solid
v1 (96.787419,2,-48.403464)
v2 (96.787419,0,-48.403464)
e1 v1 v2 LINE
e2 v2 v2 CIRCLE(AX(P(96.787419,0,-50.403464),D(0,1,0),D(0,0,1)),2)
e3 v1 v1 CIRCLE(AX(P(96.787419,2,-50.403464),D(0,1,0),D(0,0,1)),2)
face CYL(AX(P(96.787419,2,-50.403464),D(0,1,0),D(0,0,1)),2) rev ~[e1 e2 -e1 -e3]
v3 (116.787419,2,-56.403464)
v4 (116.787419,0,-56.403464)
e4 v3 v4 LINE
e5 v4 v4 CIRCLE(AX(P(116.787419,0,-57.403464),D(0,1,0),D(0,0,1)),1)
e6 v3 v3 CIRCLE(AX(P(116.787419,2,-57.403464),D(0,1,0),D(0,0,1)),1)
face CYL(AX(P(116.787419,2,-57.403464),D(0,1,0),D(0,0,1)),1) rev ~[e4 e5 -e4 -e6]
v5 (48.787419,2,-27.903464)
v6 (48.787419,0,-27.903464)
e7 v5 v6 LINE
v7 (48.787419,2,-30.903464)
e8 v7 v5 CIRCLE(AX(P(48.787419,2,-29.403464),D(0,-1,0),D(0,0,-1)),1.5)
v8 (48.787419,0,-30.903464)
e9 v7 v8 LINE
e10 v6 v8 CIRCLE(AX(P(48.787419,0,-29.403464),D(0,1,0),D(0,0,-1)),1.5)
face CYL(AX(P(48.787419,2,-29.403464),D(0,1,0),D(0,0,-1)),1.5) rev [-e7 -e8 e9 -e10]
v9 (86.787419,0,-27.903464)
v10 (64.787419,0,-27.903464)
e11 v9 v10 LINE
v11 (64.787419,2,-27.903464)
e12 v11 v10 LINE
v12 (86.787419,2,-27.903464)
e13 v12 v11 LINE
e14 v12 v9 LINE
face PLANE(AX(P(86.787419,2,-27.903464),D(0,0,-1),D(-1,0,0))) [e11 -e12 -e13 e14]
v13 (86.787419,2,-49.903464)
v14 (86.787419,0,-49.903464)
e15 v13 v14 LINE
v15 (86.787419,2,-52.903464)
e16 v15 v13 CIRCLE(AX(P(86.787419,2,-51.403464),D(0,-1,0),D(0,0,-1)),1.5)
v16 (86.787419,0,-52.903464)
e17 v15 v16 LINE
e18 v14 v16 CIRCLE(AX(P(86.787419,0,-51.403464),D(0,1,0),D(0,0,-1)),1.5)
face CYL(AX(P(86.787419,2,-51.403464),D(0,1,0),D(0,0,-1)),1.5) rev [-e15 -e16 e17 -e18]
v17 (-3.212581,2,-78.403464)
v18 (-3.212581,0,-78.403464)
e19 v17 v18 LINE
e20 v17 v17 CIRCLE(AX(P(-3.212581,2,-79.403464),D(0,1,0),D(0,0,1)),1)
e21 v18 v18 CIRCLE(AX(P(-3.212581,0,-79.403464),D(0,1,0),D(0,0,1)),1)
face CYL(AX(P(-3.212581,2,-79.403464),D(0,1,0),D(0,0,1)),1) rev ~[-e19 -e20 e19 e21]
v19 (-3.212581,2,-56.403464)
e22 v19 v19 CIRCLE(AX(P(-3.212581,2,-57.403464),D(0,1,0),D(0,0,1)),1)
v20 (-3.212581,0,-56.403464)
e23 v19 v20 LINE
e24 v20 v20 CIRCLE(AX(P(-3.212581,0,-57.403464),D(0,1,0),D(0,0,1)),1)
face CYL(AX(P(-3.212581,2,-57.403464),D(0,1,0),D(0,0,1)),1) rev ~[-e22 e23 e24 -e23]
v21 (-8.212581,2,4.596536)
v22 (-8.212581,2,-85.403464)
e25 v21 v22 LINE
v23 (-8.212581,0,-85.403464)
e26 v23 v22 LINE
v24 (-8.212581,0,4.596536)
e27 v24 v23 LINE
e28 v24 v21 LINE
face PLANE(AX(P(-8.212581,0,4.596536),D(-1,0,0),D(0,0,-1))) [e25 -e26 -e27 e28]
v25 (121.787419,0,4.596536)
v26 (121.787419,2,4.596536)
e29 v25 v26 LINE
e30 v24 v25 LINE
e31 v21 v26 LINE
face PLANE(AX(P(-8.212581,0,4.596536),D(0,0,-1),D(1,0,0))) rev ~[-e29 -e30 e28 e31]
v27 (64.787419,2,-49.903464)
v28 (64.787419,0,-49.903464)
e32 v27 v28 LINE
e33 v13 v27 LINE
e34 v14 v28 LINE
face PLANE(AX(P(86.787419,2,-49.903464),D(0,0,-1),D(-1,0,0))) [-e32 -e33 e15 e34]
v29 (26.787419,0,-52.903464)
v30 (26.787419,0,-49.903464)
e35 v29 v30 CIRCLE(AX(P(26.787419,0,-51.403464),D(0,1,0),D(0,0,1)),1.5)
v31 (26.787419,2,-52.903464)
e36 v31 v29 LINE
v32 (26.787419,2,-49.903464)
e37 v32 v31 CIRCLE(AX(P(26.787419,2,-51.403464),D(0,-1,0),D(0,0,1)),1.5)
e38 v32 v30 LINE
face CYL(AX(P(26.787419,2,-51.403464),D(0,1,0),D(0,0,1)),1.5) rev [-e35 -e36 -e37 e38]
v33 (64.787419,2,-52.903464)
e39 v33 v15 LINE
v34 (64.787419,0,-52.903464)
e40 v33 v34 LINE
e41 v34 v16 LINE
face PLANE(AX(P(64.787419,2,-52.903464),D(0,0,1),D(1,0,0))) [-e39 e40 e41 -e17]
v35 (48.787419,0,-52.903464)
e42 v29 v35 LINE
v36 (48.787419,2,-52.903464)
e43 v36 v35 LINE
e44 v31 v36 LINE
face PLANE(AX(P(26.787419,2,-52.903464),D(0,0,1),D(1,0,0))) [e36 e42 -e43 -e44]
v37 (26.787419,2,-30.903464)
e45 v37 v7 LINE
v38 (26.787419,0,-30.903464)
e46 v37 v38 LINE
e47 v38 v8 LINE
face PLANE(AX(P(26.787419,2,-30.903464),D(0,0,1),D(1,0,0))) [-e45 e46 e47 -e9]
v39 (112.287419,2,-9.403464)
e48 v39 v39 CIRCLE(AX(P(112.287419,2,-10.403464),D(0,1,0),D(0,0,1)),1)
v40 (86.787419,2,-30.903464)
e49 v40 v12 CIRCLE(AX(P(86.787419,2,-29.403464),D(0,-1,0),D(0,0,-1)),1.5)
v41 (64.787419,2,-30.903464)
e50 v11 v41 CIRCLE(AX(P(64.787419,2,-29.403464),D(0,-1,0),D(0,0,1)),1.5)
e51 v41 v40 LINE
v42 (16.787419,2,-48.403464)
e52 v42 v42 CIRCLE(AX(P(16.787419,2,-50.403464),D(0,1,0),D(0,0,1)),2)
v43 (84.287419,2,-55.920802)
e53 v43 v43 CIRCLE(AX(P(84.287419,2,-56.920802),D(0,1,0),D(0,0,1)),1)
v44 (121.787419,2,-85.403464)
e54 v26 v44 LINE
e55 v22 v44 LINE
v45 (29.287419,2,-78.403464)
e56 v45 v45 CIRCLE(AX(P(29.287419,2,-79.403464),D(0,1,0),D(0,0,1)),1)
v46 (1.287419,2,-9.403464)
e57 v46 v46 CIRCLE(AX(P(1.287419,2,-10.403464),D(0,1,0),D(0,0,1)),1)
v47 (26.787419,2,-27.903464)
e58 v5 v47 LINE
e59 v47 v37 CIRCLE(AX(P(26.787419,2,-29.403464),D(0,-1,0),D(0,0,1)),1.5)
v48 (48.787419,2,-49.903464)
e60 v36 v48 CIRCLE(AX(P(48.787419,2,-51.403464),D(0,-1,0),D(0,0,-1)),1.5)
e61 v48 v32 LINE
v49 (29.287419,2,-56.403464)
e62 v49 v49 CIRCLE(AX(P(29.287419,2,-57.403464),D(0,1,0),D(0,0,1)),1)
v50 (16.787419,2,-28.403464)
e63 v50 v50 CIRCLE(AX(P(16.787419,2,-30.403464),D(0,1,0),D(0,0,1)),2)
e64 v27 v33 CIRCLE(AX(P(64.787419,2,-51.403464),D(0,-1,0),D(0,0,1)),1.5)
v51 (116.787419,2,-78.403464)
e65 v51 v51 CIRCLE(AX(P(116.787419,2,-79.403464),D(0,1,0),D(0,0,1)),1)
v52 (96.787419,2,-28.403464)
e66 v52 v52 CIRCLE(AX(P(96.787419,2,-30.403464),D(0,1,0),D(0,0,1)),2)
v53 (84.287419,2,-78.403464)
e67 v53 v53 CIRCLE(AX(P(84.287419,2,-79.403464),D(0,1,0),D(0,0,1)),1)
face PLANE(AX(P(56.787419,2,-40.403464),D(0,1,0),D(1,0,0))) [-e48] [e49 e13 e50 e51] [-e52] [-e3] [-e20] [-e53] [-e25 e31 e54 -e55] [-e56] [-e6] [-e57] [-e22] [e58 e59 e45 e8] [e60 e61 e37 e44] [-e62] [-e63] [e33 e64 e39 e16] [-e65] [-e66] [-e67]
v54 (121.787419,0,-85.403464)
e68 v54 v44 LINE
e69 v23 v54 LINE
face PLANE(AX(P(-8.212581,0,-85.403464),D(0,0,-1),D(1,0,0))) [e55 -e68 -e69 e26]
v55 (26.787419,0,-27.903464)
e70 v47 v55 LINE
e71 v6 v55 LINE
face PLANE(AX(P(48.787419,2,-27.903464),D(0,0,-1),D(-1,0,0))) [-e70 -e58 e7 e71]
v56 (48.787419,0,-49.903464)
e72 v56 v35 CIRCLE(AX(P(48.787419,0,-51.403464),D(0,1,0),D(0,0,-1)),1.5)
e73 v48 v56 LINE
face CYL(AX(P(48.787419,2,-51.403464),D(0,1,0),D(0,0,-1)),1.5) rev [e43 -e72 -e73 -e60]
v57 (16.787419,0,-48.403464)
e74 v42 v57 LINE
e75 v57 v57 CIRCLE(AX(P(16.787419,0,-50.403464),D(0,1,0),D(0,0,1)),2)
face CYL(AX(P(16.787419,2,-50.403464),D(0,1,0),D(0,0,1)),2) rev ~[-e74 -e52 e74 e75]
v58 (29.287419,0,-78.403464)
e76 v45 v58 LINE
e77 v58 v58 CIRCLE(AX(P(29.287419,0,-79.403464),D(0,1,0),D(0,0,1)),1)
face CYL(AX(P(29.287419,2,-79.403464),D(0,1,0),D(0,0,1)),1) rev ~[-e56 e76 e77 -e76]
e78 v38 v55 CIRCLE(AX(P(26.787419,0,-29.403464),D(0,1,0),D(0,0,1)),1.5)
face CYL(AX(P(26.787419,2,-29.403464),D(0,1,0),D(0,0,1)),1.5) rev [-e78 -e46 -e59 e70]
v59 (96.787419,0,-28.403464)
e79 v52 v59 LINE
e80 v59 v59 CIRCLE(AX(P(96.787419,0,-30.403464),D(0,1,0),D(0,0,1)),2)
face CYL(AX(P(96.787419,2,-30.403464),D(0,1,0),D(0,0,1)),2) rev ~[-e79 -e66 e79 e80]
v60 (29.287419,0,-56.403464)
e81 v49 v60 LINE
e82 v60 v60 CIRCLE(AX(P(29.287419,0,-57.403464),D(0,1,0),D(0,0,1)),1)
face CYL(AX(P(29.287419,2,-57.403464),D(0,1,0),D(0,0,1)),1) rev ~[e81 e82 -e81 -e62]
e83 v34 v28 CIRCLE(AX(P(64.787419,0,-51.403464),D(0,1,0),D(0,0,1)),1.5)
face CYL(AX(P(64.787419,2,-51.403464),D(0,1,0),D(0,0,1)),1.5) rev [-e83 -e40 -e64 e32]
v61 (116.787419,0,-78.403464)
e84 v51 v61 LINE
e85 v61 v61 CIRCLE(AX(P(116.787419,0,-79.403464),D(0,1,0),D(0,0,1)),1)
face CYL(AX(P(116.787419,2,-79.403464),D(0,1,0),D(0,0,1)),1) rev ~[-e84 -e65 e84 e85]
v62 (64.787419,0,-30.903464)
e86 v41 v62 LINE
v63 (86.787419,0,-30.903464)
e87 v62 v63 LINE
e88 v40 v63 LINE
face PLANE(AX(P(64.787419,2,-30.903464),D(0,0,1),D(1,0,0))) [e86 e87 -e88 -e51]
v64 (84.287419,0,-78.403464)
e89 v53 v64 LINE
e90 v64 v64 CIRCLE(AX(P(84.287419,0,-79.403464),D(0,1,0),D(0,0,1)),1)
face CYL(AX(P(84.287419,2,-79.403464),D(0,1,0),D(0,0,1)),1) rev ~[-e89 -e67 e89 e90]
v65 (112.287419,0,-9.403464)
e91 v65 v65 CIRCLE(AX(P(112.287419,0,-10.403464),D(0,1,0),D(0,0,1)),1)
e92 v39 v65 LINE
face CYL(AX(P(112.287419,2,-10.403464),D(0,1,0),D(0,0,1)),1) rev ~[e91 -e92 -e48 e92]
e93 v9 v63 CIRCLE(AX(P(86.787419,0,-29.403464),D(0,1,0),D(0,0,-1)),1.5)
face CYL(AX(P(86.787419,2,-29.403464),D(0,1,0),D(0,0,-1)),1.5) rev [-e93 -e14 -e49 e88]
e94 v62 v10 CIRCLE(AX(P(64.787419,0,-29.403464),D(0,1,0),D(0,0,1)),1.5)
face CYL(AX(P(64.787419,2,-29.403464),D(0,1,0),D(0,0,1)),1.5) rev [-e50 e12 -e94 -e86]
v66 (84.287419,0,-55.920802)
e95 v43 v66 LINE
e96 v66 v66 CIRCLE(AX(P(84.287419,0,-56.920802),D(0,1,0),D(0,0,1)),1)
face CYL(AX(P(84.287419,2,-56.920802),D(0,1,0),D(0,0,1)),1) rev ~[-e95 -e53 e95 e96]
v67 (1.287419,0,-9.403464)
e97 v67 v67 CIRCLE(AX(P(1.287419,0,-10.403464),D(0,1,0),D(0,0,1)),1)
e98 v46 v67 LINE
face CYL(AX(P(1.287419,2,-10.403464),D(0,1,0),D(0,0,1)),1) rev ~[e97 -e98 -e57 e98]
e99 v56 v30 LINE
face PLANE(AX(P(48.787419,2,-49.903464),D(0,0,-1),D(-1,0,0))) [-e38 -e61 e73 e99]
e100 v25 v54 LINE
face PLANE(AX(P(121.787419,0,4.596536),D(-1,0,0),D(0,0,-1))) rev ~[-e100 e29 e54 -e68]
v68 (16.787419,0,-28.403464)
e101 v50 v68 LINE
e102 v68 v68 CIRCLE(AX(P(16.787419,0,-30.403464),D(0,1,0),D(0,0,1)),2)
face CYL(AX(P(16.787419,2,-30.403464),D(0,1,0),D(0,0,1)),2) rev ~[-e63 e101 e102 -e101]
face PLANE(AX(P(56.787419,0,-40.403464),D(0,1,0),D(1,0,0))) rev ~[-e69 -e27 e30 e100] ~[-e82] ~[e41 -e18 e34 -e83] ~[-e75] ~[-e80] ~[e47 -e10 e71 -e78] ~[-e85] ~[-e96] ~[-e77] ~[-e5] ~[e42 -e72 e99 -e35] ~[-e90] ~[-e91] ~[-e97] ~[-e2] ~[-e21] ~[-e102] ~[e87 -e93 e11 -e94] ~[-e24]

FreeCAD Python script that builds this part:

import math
import FreeCAD as App
import Part
import Sketcher

V = App.Vector
Q = App.Units.Quantity

doc = App.newDocument("Part")
params = doc.addObject("Spreadsheet::Sheet", "Params")
for row, (alias, value) in enumerate([
    ("sketch1_width", "130 mm"),
    ("sketch1_height", "90 mm"),
    ("pad1_length", "2 mm"),
    ("sketch2_diameter", "4 mm"),
    ("pocket1_length", "10 mm"),
    ("sketch3_radius", "1.5 mm"),
    ("sketch3_width", "22 mm"),
    ("pocket2_length", "10 mm"),
    ("sketch4_diameter", "2 mm"),
    ("pocket3_length", "10 mm"),
], start=1):
    params.set(f"A{row}", alias)
    params.set(f"B{row}", "=" + value)
    params.setAlias(f"B{row}", alias)

body = doc.addObject("PartDesign::Body", "Body")

# Sketch on XZ plane
sketch1 = body.newObject("Sketcher::SketchObject", "Sketch")
sketch1.AttachmentSupport = (doc.getObject("XZ_Plane"), [""])
sketch1.MapMode = "FlatFace"
sketch1.addGeometry([
    Part.LineSegment(V(-8, -85, 0), V(-8, 5, 0)),
    Part.LineSegment(V(-8, 5, 0), V(122, 5, 0)),
    Part.LineSegment(V(122, 5, 0), V(122, -85, 0)),
    Part.LineSegment(V(122, -85, 0), V(-8, -85, 0)),
], False)
sketch1.addConstraint([
    Sketcher.Constraint("Coincident", 0, 2, 1, 1),
    Sketcher.Constraint("Coincident", 1, 2, 2, 1),
    Sketcher.Constraint("Coincident", 2, 2, 3, 1),
    Sketcher.Constraint("Coincident", 3, 2, 0, 1),
    Sketcher.Constraint("Vertical", 0),
    Sketcher.Constraint("Horizontal", 1),
    Sketcher.Constraint("Vertical", 2),
    Sketcher.Constraint("Horizontal", 3),
    Sketcher.Constraint("DistanceX", 1, 1, 1, 2, Q("130 mm")),
    Sketcher.Constraint("DistanceY", 0, 1, 0, 2, Q("90 mm")),
    Sketcher.Constraint("DistanceX", 0, 2, -1, 1, Q("8.212581 mm")),
    Sketcher.Constraint("DistanceY", -1, 1, 0, 2, Q("4.596536 mm")),
])
sketch1.setExpression("Constraints[8]", "Params.sketch1_width")
sketch1.setExpression("Constraints[9]", "Params.sketch1_height")
pad1 = body.newObject("PartDesign::Pad", "Pad")
pad1.Profile = sketch1
pad1.setExpression("Length", "Params.pad1_length")
pad1.Reversed = True

# Sketch on XZ plane
sketch2 = body.newObject("Sketcher::SketchObject", "Sketch001")
sketch2.AttachmentSupport = (doc.getObject("XZ_Plane"), [""])
sketch2.MapMode = "FlatFace"
sketch2.AttachmentOffset = App.Placement(V(0, 0, -2), App.Rotation())
sketch2.addGeometry([
    Part.Circle(V(16.8, -50.4, 0), V(0, 0, 1), 2),
    Part.Circle(V(16.8, -30.4, 0), V(0, 0, 1), 2),
    Part.Circle(V(96.8, -50.4, 0), V(0, 0, 1), 2),
    Part.Circle(V(96.8, -30.4, 0), V(0, 0, 1), 2),
], False)
sketch2.addConstraint([
    Sketcher.Constraint("Equal", 0, 1),
    Sketcher.Constraint("Equal", 1, 2),
    Sketcher.Constraint("Equal", 2, 3),
    Sketcher.Constraint("Horizontal", 0, 3, 2, 3),
    Sketcher.Constraint("Horizontal", 1, 3, 3, 3),
    Sketcher.Constraint("Vertical", 0, 3, 1, 3),
    Sketcher.Constraint("Vertical", 2, 3, 3, 3),
    Sketcher.Constraint("Diameter", 0, Q("4 mm")),
    Sketcher.Constraint("DistanceY", 0, 3, 1, 3, Q("20 mm")),
    Sketcher.Constraint("DistanceX", 0, 3, 2, 3, Q("80 mm")),
    Sketcher.Constraint("DistanceX", -1, 1, 0, 3, Q("16.787419 mm")),
    Sketcher.Constraint("DistanceY", 0, 3, -1, 1, Q("50.403464 mm")),
])
sketch2.setExpression("Constraints[7]", "Params.sketch2_diameter")
pocket1 = body.newObject("PartDesign::Pocket", "Pocket")
pocket1.Profile = sketch2
pocket1.setExpression("Length", "Params.pocket1_length")
pocket1.Reversed = True

# Sketch on XZ plane
sketch3 = body.newObject("Sketcher::SketchObject", "Sketch002")
sketch3.AttachmentSupport = (doc.getObject("XZ_Plane"), [""])
sketch3.MapMode = "FlatFace"
sketch3.AttachmentOffset = App.Placement(V(0, 0, -2), App.Rotation())
sketch3.addGeometry([
    Part.LineSegment(V(48.8, -52.9, 0), V(26.8, -52.9, 0)),  # 0
    Part.ArcOfCircle(Part.Circle(V(26.8, -51.4, 0), V(0, 0, 1), 1.5), math.radians(90), math.radians(270)),  # 1
    Part.LineSegment(V(26.8, -49.9, 0), V(48.8, -49.9, 0)),  # 2
    Part.ArcOfCircle(Part.Circle(V(48.8, -51.4, 0), V(0, 0, 1), 1.5), math.radians(-90), math.radians(90)),  # 3
    Part.LineSegment(V(48.8, -30.9, 0), V(26.8, -30.9, 0)),  # 4
    Part.ArcOfCircle(Part.Circle(V(26.8, -29.4, 0), V(0, 0, 1), 1.5), math.radians(90), math.radians(270)),  # 5
    Part.LineSegment(V(26.8, -27.9, 0), V(48.8, -27.9, 0)),  # 6
    Part.ArcOfCircle(Part.Circle(V(48.8, -29.4, 0), V(0, 0, 1), 1.5), math.radians(-90), math.radians(90)),  # 7
    Part.LineSegment(V(86.8, -52.9, 0), V(64.8, -52.9, 0)),  # 8
    Part.ArcOfCircle(Part.Circle(V(64.8, -51.4, 0), V(0, 0, 1), 1.5), math.radians(90), math.radians(270)),  # 9
    Part.LineSegment(V(64.8, -49.9, 0), V(86.8, -49.9, 0)),  # 10
    Part.ArcOfCircle(Part.Circle(V(86.8, -51.4, 0), V(0, 0, 1), 1.5), math.radians(-90), math.radians(90)),  # 11
    Part.LineSegment(V(86.8, -30.9, 0), V(64.8, -30.9, 0)),  # 12
    Part.ArcOfCircle(Part.Circle(V(64.8, -29.4, 0), V(0, 0, 1), 1.5), math.radians(90), math.radians(270)),  # 13
    Part.LineSegment(V(64.8, -27.9, 0), V(86.8, -27.9, 0)),  # 14
    Part.ArcOfCircle(Part.Circle(V(86.8, -29.4, 0), V(0, 0, 1), 1.5), math.radians(-90), math.radians(90)),  # 15
], False)
sketch3.addConstraint([
    Sketcher.Constraint("Tangent", 0, 2, 1, 2),
    Sketcher.Constraint("Tangent", 1, 1, 2, 1),
    Sketcher.Constraint("Tangent", 2, 2, 3, 2),
    Sketcher.Constraint("Tangent", 3, 1, 0, 1),
    Sketcher.Constraint("Tangent", 4, 2, 5, 2),
    Sketcher.Constraint("Tangent", 5, 1, 6, 1),
    Sketcher.Constraint("Tangent", 6, 2, 7, 2),
    Sketcher.Constraint("Tangent", 7, 1, 4, 1),
    Sketcher.Constraint("Tangent", 8, 2, 9, 2),
    Sketcher.Constraint("Tangent", 9, 1, 10, 1),
    Sketcher.Constraint("Tangent", 10, 2, 11, 2),
    Sketcher.Constraint("Tangent", 11, 1, 8, 1),
    Sketcher.Constraint("Tangent", 12, 2, 13, 2),
    Sketcher.Constraint("Tangent", 13, 1, 14, 1),
    Sketcher.Constraint("Tangent", 14, 2, 15, 2),
    Sketcher.Constraint("Tangent", 15, 1, 12, 1),
    Sketcher.Constraint("Horizontal", 0),
    Sketcher.Constraint("Horizontal", 2),
    Sketcher.Constraint("Horizontal", 4),
    Sketcher.Constraint("Horizontal", 6),
    Sketcher.Constraint("Horizontal", 8),
    Sketcher.Constraint("Horizontal", 10),
    Sketcher.Constraint("Horizontal", 12),
    Sketcher.Constraint("Horizontal", 14),
    Sketcher.Constraint("Equal", 3, 5),
    Sketcher.Constraint("Equal", 7, 9),
    Sketcher.Constraint("Equal", 11, 13),
    Sketcher.Constraint("Horizontal", 3, 3, 9, 3),
    Sketcher.Constraint("Horizontal", 7, 3, 13, 3),
    Sketcher.Constraint("Vertical", 1, 3, 5, 3),
    Sketcher.Constraint("Vertical", 3, 3, 7, 3),
    Sketcher.Constraint("Vertical", 9, 3, 13, 3),
    Sketcher.Constraint("Vertical", 11, 3, 15, 3),
    Sketcher.Constraint("Equal", 6, 8),
    Sketcher.Constraint("Radius", 1, Q("1.5 mm")),
    Sketcher.Constraint("DistanceX", 0, 2, 0, 1, Q("22 mm")),
    Sketcher.Constraint("DistanceY", 1, 3, 5, 3, Q("22 mm")),
    Sketcher.Constraint("DistanceX", 3, 3, 9, 3, Q("16 mm")),
    Sketcher.Constraint("DistanceX", -1, 1, 1, 3, Q("26.787419 mm")),
    Sketcher.Constraint("DistanceY", 1, 3, -1, 1, Q("51.403464 mm")),
])
sketch3.setExpression("Constraints[34]", "Params.sketch3_radius")
sketch3.setExpression("Constraints[35]", "Params.sketch3_width")
pocket2 = body.newObject("PartDesign::Pocket", "Pocket001")
pocket2.Profile = sketch3
pocket2.setExpression("Length", "Params.pocket2_length")
pocket2.Reversed = True

# Sketch on XZ plane
sketch4 = body.newObject("Sketcher::SketchObject", "Sketch003")
sketch4.AttachmentSupport = (doc.getObject("XZ_Plane"), [""])
sketch4.MapMode = "FlatFace"
sketch4.AttachmentOffset = App.Placement(V(0, 0, -2), App.Rotation())
sketch4.addGeometry([
    Part.Circle(V(1.3, -10.4, 0), V(0, 0, 1), 1),  # 0
    Part.Circle(V(112.3, -10.4, 0), V(0, 0, 1), 1),  # 1
    Part.Circle(V(84.3, -56.9, 0), V(0, 0, 1), 1),  # 2
    Part.Circle(V(116.8, -57.4, 0), V(0, 0, 1), 1),  # 3
    Part.Circle(V(116.8, -79.4, 0), V(0, 0, 1), 1),  # 4
    Part.Circle(V(84.3, -79.4, 0), V(0, 0, 1), 1),  # 5
    Part.Circle(V(-3.2, -57.4, 0), V(0, 0, 1), 1),  # 6
    Part.Circle(V(29.3, -57.4, 0), V(0, 0, 1), 1),  # 7
    Part.Circle(V(29.3, -79.4, 0), V(0, 0, 1), 1),  # 8
    Part.Circle(V(-3.2, -79.4, 0), V(0, 0, 1), 1),  # 9
], False)
sketch4.addConstraint([
    Sketcher.Constraint("Equal", 0, 1),
    Sketcher.Constraint("Equal", 1, 2),
    Sketcher.Constraint("Equal", 2, 3),
    Sketcher.Constraint("Equal", 3, 4),
    Sketcher.Constraint("Equal", 4, 5),
    Sketcher.Constraint("Equal", 5, 6),
    Sketcher.Constraint("Equal", 6, 7),
    Sketcher.Constraint("Equal", 7, 8),
    Sketcher.Constraint("Equal", 8, 9),
    Sketcher.Constraint("Horizontal", 0, 3, 1, 3),
    Sketcher.Constraint("Horizontal", 4, 3, 5, 3),
    Sketcher.Constraint("Horizontal", 3, 3, 6, 3),
    Sketcher.Constraint("Horizontal", 6, 3, 7, 3),
    Sketcher.Constraint("Horizontal", 5, 3, 8, 3),
    Sketcher.Constraint("Horizontal", 8, 3, 9, 3),
    Sketcher.Constraint("Vertical", 3, 3, 4, 3),
    Sketcher.Constraint("Vertical", 2, 3, 5, 3),
    Sketcher.Constraint("Vertical", 7, 3, 8, 3),
    Sketcher.Constraint("Vertical", 6, 3, 9, 3),
    Sketcher.Constraint("Diameter", 0, Q("2 mm")),
    Sketcher.Constraint("DistanceX", 0, 3, 1, 3, Q("111 mm")),
    Sketcher.Constraint("DistanceX", 2, 3, 1, 3, Q("28 mm")),
    Sketcher.Constraint("DistanceY", 3, 3, 1, 3, Q("47 mm")),
    Sketcher.Constraint("DistanceY", 4, 3, 3, 3, Q("22 mm")),
    Sketcher.Constraint("DistanceX", 6, 3, 3, 3, Q("120 mm")),
    Sketcher.Constraint("DistanceX", 0, 3, 7, 3, Q("28 mm")),
    Sketcher.Constraint("DistanceX", 2, 3, 3, 3, Q("32.5 mm")),
    Sketcher.Constraint("DistanceY", 2, 3, -1, 1, Q("56.920802 mm")),
    Sketcher.Constraint("DistanceX", -1, 1, 0, 3, Q("1.287419 mm")),
    Sketcher.Constraint("DistanceY", 2, 3, 1, 3, Q("46.517338 mm")),
])
sketch4.setExpression("Constraints[19]", "Params.sketch4_diameter")
pocket3 = body.newObject("PartDesign::Pocket", "Pocket002")
pocket3.Profile = sketch4
pocket3.setExpression("Length", "Params.pocket3_length")
pocket3.Reversed = True

doc.recompute()
